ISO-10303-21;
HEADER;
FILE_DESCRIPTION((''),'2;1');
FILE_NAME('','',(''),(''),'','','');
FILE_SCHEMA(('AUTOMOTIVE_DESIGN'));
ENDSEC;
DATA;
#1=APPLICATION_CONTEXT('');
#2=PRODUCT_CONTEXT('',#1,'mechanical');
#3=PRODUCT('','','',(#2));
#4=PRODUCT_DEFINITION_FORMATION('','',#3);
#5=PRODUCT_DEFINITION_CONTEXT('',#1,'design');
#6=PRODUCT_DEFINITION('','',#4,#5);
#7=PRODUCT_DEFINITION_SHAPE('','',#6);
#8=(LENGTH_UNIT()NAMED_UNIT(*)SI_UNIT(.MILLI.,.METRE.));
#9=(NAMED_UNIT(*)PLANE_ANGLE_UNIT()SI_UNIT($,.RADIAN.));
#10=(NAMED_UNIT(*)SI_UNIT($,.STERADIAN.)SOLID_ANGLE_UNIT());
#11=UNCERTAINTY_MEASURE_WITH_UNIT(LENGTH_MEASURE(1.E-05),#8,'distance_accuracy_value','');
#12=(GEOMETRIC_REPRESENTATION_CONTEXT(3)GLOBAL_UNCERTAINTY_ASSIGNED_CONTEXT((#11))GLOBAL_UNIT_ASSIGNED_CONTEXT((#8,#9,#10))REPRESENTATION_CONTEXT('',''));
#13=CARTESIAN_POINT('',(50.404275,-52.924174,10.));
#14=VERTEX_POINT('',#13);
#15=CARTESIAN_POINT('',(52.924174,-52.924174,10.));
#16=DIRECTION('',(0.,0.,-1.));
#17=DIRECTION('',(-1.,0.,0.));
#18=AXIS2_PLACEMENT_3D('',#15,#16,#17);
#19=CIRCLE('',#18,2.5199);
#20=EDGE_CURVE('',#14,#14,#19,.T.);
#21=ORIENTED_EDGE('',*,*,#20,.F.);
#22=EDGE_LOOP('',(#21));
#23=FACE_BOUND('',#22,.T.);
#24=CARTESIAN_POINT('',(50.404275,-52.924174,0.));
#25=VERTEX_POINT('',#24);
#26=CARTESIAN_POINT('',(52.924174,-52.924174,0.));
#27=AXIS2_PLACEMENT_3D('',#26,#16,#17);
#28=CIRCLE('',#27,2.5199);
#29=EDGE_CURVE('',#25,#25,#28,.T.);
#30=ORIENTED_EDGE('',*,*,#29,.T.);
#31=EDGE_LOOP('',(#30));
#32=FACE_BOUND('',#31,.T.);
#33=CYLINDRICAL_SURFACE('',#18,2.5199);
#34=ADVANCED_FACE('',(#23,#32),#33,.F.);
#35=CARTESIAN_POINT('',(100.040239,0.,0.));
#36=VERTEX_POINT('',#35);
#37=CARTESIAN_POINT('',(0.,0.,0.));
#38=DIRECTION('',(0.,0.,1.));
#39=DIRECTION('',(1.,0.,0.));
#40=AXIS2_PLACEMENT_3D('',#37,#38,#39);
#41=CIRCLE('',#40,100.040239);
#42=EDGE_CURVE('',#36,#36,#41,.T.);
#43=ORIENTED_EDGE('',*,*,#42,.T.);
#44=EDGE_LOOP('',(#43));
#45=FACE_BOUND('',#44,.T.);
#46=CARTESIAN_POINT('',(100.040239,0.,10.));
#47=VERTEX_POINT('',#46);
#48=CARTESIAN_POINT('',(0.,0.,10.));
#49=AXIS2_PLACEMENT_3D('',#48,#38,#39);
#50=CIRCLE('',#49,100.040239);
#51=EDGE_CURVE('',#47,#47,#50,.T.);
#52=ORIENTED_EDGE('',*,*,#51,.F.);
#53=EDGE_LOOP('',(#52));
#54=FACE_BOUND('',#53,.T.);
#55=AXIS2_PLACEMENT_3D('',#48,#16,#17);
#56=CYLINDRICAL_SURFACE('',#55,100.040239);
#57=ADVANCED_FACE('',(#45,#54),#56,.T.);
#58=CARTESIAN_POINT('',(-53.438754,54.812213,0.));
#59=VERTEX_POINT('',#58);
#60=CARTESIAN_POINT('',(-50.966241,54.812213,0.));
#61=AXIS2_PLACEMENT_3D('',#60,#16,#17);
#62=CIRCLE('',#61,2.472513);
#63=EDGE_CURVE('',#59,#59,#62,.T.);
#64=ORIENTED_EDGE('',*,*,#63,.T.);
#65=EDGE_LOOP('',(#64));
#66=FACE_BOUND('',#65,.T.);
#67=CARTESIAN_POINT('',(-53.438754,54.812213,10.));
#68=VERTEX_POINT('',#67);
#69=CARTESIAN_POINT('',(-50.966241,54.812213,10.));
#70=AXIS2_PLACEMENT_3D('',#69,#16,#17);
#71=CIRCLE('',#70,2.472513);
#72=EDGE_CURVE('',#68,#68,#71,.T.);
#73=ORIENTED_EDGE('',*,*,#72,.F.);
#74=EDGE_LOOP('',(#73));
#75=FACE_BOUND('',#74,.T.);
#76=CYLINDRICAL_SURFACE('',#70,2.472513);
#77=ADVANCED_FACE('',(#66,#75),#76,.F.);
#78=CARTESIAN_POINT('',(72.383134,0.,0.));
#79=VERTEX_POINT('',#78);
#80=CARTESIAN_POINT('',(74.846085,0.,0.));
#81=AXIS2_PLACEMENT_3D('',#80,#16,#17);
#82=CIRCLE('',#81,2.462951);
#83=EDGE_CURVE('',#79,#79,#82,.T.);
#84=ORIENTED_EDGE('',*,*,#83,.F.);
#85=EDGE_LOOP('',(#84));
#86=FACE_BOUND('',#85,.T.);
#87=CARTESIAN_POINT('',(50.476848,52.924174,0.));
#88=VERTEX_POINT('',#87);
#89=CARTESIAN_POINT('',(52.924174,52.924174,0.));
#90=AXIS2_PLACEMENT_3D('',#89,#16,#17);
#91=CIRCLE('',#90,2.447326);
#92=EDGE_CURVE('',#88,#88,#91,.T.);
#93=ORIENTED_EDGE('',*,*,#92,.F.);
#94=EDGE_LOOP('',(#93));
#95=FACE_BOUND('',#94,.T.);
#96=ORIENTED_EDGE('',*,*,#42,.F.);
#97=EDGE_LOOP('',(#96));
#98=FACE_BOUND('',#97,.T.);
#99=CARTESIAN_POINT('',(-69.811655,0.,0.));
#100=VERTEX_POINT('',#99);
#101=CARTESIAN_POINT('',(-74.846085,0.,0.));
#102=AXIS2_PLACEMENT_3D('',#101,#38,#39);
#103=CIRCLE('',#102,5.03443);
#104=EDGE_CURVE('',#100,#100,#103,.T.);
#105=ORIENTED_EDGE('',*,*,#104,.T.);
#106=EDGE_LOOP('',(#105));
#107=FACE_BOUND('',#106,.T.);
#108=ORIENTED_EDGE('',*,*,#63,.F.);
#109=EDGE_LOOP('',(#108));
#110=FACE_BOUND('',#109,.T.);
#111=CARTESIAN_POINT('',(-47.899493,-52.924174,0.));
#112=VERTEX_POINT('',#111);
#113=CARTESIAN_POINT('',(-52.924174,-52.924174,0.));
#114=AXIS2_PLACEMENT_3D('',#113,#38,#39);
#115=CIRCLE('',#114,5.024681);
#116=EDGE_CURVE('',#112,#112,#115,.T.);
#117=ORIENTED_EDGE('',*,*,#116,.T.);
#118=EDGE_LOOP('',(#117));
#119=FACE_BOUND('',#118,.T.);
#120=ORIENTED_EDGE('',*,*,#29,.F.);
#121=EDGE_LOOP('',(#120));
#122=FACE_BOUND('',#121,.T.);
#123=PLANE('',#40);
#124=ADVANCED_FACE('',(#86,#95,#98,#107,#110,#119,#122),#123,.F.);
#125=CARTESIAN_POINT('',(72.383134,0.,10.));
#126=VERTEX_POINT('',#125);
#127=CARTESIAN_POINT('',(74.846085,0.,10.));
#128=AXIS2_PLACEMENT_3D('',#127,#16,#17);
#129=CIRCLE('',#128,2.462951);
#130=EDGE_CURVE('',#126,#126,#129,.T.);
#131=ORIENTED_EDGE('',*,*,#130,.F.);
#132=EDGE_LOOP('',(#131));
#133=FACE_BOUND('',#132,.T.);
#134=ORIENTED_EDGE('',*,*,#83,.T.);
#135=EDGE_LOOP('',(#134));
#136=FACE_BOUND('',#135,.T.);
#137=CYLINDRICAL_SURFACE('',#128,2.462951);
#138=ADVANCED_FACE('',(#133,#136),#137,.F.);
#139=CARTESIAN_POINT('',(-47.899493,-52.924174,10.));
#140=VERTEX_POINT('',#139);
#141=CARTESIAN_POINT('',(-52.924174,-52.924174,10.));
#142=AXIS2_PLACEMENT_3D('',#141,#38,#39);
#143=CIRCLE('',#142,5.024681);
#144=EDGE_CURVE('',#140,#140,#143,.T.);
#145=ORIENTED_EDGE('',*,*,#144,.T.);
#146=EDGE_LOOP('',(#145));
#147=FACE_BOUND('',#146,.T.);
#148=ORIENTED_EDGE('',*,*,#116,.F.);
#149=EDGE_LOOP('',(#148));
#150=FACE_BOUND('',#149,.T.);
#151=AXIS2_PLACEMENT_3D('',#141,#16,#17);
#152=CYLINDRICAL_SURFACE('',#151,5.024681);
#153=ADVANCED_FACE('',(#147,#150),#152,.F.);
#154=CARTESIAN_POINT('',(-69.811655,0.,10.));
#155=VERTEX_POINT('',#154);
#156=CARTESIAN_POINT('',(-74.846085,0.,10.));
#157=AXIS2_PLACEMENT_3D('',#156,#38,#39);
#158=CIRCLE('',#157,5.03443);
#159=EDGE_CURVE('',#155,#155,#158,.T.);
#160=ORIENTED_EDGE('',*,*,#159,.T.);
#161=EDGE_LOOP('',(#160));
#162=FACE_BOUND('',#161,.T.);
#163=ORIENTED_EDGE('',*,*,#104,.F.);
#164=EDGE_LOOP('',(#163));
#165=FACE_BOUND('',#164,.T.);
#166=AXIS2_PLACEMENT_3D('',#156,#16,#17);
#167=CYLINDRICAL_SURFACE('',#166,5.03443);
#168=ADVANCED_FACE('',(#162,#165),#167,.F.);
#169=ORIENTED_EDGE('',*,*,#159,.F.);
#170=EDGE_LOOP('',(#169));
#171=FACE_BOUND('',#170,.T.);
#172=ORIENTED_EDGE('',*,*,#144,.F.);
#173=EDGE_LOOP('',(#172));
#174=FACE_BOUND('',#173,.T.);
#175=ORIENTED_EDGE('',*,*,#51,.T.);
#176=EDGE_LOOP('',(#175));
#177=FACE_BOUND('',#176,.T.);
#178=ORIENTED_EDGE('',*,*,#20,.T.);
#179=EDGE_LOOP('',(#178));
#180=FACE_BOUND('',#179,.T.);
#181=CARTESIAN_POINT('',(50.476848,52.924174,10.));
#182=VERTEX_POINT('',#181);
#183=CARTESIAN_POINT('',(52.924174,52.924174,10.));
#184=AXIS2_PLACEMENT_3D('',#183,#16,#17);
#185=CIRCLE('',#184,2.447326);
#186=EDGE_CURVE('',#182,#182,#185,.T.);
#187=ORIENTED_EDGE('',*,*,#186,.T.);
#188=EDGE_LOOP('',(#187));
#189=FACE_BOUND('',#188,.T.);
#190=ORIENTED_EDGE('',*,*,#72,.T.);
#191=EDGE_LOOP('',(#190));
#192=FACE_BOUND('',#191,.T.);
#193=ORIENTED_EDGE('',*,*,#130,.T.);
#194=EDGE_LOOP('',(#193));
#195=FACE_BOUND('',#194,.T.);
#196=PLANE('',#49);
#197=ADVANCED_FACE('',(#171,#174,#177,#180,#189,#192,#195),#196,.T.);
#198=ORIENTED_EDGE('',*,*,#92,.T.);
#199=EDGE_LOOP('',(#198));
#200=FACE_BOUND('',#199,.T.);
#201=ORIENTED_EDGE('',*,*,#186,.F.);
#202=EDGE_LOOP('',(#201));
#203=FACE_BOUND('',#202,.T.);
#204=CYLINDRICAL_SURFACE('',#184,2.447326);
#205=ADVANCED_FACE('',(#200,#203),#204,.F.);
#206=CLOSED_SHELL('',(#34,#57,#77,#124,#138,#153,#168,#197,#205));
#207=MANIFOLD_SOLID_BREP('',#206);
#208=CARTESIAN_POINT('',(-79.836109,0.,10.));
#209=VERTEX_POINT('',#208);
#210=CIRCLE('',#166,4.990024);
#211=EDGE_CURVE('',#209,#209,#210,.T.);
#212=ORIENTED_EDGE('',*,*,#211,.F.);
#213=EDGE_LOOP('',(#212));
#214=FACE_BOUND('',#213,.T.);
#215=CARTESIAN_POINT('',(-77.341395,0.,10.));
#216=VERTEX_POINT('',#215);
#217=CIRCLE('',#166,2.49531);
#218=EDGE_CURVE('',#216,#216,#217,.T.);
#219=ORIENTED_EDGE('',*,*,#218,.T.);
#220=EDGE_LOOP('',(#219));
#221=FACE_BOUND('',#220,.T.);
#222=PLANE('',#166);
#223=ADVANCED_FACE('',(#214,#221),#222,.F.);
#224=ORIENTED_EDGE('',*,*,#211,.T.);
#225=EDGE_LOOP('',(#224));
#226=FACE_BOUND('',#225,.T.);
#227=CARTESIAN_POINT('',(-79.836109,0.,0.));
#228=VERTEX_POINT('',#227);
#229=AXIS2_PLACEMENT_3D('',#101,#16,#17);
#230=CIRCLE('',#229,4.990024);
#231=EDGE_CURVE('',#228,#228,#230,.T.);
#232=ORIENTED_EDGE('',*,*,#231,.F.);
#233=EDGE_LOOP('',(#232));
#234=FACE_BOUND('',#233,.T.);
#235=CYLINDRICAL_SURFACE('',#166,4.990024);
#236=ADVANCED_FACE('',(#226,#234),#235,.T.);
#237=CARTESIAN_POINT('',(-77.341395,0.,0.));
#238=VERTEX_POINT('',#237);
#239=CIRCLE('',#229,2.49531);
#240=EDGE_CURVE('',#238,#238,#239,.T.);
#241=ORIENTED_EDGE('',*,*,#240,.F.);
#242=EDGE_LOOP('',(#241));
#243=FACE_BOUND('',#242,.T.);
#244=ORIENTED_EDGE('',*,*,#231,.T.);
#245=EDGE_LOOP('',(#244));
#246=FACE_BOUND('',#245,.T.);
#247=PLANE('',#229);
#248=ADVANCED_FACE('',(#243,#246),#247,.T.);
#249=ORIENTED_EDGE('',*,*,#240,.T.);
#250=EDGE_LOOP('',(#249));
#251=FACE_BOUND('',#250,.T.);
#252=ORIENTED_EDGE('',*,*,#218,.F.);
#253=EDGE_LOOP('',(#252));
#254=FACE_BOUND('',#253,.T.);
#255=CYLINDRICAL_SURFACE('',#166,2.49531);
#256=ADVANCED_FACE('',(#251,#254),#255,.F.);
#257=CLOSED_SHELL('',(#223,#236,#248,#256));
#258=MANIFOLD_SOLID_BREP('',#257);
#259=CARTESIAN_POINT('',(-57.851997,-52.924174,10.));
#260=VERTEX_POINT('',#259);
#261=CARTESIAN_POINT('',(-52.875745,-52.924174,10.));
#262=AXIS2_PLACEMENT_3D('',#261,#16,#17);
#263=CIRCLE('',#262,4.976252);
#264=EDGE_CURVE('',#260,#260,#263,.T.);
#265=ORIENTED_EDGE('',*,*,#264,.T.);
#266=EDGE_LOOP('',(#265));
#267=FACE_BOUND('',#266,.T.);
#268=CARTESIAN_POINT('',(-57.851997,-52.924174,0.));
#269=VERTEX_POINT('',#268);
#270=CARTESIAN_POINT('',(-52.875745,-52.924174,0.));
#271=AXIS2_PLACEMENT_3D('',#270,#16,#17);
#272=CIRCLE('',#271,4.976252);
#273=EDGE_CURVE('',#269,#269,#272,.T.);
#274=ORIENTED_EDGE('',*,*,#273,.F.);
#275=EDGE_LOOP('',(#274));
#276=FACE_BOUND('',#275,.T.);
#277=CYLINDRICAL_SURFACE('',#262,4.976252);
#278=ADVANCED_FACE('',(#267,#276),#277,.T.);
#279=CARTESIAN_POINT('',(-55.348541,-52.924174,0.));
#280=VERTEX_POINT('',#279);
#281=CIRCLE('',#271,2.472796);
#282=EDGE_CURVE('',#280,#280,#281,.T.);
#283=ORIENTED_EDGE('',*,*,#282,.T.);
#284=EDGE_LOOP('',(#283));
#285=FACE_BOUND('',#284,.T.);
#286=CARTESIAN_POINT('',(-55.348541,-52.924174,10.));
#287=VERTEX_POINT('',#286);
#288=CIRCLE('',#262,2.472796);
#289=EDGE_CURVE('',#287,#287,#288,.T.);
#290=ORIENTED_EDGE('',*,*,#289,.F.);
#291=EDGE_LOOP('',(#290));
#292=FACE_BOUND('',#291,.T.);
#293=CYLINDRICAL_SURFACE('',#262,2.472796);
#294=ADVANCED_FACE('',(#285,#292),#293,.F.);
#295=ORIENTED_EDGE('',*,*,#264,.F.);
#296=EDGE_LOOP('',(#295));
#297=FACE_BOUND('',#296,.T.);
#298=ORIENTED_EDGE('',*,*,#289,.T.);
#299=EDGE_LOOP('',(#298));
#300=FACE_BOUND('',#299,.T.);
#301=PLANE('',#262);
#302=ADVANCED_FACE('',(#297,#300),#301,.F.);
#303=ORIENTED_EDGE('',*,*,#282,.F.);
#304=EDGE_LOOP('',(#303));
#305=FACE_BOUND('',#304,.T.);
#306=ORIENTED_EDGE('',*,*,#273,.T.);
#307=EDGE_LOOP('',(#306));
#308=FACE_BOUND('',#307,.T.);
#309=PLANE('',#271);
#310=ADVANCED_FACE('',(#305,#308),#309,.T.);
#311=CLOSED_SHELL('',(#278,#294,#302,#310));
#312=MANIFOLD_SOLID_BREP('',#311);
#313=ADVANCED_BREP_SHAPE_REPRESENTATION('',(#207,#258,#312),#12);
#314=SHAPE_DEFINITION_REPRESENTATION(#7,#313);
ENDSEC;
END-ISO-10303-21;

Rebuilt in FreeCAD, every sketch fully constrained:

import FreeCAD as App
import Part
import Sketcher

V = App.Vector
Q = App.Units.Quantity

doc = App.newDocument("Part")
body = doc.addObject("PartDesign::Body", "Body")
body.AllowCompound = True

sketch1 = body.newObject("Sketcher::SketchObject", "Sketch")
sketch1.AttachmentSupport = (doc.getObject("XY_Plane"), [""])
sketch1.MapMode = "FlatFace"
sketch1.addGeometry(Part.Circle(V(0, 0, 0), V(0, 0, 1), 100), False)
sketch1.addGeometry(Part.Circle(V(-52.9, -52.9, 0), V(0, 0, 1), 5), False)
sketch1.addGeometry(Part.Circle(V(-74.8, 0, 0), V(0, 0, 1), 5), False)
sketch1.addGeometry(Part.Circle(V(52.9, -52.9, 0), V(0, 0, 1), 5), False)
sketch1.addGeometry(Part.Circle(V(74.8, 0, 0), V(0, 0, 1), 5), False)
sketch1.addGeometry(Part.Circle(V(-51, 54.8, 0), V(0, 0, 1), 5), False)
sketch1.addGeometry(Part.Circle(V(52.9, 52.9, 0), V(0, 0, 1), 5), False)
sketch1.addConstraint(Sketcher.Constraint("Coincident", 0, 3, -1, 1))
sketch1.addConstraint(Sketcher.Constraint("Symmetric", 2, 3, 4, 3, -1, 1))
sketch1.addConstraint(Sketcher.Constraint("Symmetric", 1, 3, 6, 3, -1, 1))
sketch1.addConstraint(Sketcher.Constraint("Symmetric", 1, 3, 3, 3, -2))
sketch1.addConstraint(Sketcher.Constraint("PointOnObject", 2, 3, -1))
sketch1.addConstraint(Sketcher.Constraint("Diameter", 4, Q("9.988201 mm")))
sketch1.addConstraint(Sketcher.Constraint("Diameter", 0, Q("200.080479 mm")))
sketch1.addConstraint(Sketcher.Constraint("Diameter", 2, Q("10.068859 mm")))
sketch1.addConstraint(Sketcher.Constraint("Diameter", 1, Q("10.049362 mm")))
sketch1.addConstraint(Sketcher.Constraint("Diameter", 3, Q("9.999575 mm")))
sketch1.addConstraint(Sketcher.Constraint("Diameter", 5, Q("10.011378 mm")))
sketch1.addConstraint(Sketcher.Constraint("Diameter", 6, Q("9.970997 mm")))
sketch1.addConstraint(Sketcher.Constraint("DistanceX", 5, 3, -1, 1, Q("50.966241 mm")))
sketch1.addConstraint(Sketcher.Constraint("DistanceX", 2, 3, 1, 3, Q("21.921911 mm")))
sketch1.addConstraint(Sketcher.Constraint("DistanceX", 1, 3, 3, 3, Q("105.848348 mm")))
sketch1.addConstraint(Sketcher.Constraint("DistanceY", 6, 3, 5, 3, Q("1.888039 mm")))
sketch1.addConstraint(Sketcher.Constraint("DistanceY", 3, 3, 6, 3, Q("105.848348 mm")))
pad1 = body.newObject("PartDesign::Pad", "Pad")
pad1.Profile = sketch1
pad1.Length = 10

sketch2 = body.newObject("Sketcher::SketchObject", "Sketch001")
sketch2.AttachmentSupport = (doc.getObject("XY_Plane"), [""])
sketch2.MapMode = "FlatFace"
sketch2.addGeometry(Part.Circle(V(74.8, 0, 0), V(0, 0, 1), 5), False)
sketch2.addGeometry(Part.Circle(V(74.8, 0, 0), V(0, 0, 1), 2.5), False)
sketch2.addConstraint(Sketcher.Constraint("Coincident", 1, 3, 0, 3))
sketch2.addConstraint(Sketcher.Constraint("PointOnObject", 0, 3, -1))
sketch2.addConstraint(Sketcher.Constraint("Diameter", 0, Q("9.988201 mm")))
sketch2.addConstraint(Sketcher.Constraint("Diameter", 1, Q("4.925901 mm")))
sketch2.addConstraint(Sketcher.Constraint("DistanceX", -1, 1, 0, 3, Q("74.846085 mm")))
pad2 = body.newObject("PartDesign::Pad", "Pad001")
pad2.Profile = sketch2
pad2.Length = 10

sketch3 = body.newObject("Sketcher::SketchObject", "Sketch002")
sketch3.AttachmentSupport = (doc.getObject("XY_Plane"), [""])
sketch3.MapMode = "FlatFace"
sketch3.addGeometry(Part.Circle(V(-74.8, 0, 0), V(0, 0, 1), 5), False)
sketch3.addGeometry(Part.Circle(V(-74.8, 0, 0), V(0, 0, 1), 2.5), False)
sketch3.addGeometry(Part.Circle(V(52.9, -52.9, 0), V(0, 0, 1), 5), False)
sketch3.addGeometry(Part.Circle(V(52.9, -52.9, 0), V(0, 0, 1), 2.5), False)
sketch3.addGeometry(Part.Circle(V(-52.9, -52.9, 0), V(0, 0, 1), 5), False)
sketch3.addGeometry(Part.Circle(V(-52.9, -52.9, 0), V(0, 0, 1), 2.5), False)
sketch3.addGeometry(Part.Circle(V(-51, 54.8, 0), V(0, 0, 1), 5), False)
sketch3.addGeometry(Part.Circle(V(-51, 54.8, 0), V(0, 0, 1), 2.5), False)
sketch3.addGeometry(Part.Circle(V(52.9, 52.9, 0), V(0, 0, 1), 5), False)
sketch3.addGeometry(Part.Circle(V(52.9, 52.9, 0), V(0, 0, 1), 2.4), False)
sketch3.addConstraint(Sketcher.Constraint("Coincident", 1, 3, 0, 3))
sketch3.addConstraint(Sketcher.Constraint("Coincident", 3, 3, 2, 3))
sketch3.addConstraint(Sketcher.Constraint("Coincident", 5, 3, 4, 3))
sketch3.addConstraint(Sketcher.Constraint("Coincident", 7, 3, 6, 3))
sketch3.addConstraint(Sketcher.Constraint("Coincident", 9, 3, 8, 3))
sketch3.addConstraint(Sketcher.Constraint("Symmetric", 2, 3, 8, 3, -1))
sketch3.addConstraint(Sketcher.Constraint("PointOnObject", 0, 3, -1))
sketch3.addConstraint(Sketcher.Constraint("Horizontal", 3, 3, 4, 3))
sketch3.addConstraint(Sketcher.Constraint("Diameter", 3, Q("5.039799 mm")))
sketch3.addConstraint(Sketcher.Constraint("Diameter", 0, Q("9.980048 mm")))
sketch3.addConstraint(Sketcher.Constraint("Diameter", 1, Q("4.990619 mm")))
sketch3.addConstraint(Sketcher.Constraint("Diameter", 2, Q("9.999575 mm")))
sketch3.addConstraint(Sketcher.Constraint("Diameter", 4, Q("9.952504 mm")))
sketch3.addConstraint(Sketcher.Constraint("Diameter", 5, Q("4.945592 mm")))
sketch3.addConstraint(Sketcher.Constraint("Diameter", 6, Q("10.011378 mm")))
sketch3.addConstraint(Sketcher.Constraint("Diameter", 7, Q("4.945025 mm")))
sketch3.addConstraint(Sketcher.Constraint("Diameter", 8, Q("9.970997 mm")))
sketch3.addConstraint(Sketcher.Constraint("Diameter", 9, Q("4.894652 mm")))
sketch3.addConstraint(Sketcher.Constraint("DistanceX", 6, 3, -1, 1, Q("50.966241 mm")))
sketch3.addConstraint(Sketcher.Constraint("DistanceX", 0, 3, 2, 3, Q("127.770259 mm")))
sketch3.addConstraint(Sketcher.Constraint("DistanceX", 0, 3, 4, 3, Q("21.97034 mm")))
sketch3.addConstraint(Sketcher.Constraint("DistanceY", 8, 3, 6, 3, Q("1.888039 mm")))
sketch3.addConstraint(Sketcher.Constraint("DistanceY", 2, 3, 8, 3, Q("105.848348 mm")))
sketch3.addConstraint(Sketcher.Constraint("DistanceX", 0, 3, -1, 1, Q("74.846085 mm")))
pad3 = body.newObject("PartDesign::Pad", "Pad002")
pad3.Profile = sketch3
pad3.Length = 10

doc.recompute()
